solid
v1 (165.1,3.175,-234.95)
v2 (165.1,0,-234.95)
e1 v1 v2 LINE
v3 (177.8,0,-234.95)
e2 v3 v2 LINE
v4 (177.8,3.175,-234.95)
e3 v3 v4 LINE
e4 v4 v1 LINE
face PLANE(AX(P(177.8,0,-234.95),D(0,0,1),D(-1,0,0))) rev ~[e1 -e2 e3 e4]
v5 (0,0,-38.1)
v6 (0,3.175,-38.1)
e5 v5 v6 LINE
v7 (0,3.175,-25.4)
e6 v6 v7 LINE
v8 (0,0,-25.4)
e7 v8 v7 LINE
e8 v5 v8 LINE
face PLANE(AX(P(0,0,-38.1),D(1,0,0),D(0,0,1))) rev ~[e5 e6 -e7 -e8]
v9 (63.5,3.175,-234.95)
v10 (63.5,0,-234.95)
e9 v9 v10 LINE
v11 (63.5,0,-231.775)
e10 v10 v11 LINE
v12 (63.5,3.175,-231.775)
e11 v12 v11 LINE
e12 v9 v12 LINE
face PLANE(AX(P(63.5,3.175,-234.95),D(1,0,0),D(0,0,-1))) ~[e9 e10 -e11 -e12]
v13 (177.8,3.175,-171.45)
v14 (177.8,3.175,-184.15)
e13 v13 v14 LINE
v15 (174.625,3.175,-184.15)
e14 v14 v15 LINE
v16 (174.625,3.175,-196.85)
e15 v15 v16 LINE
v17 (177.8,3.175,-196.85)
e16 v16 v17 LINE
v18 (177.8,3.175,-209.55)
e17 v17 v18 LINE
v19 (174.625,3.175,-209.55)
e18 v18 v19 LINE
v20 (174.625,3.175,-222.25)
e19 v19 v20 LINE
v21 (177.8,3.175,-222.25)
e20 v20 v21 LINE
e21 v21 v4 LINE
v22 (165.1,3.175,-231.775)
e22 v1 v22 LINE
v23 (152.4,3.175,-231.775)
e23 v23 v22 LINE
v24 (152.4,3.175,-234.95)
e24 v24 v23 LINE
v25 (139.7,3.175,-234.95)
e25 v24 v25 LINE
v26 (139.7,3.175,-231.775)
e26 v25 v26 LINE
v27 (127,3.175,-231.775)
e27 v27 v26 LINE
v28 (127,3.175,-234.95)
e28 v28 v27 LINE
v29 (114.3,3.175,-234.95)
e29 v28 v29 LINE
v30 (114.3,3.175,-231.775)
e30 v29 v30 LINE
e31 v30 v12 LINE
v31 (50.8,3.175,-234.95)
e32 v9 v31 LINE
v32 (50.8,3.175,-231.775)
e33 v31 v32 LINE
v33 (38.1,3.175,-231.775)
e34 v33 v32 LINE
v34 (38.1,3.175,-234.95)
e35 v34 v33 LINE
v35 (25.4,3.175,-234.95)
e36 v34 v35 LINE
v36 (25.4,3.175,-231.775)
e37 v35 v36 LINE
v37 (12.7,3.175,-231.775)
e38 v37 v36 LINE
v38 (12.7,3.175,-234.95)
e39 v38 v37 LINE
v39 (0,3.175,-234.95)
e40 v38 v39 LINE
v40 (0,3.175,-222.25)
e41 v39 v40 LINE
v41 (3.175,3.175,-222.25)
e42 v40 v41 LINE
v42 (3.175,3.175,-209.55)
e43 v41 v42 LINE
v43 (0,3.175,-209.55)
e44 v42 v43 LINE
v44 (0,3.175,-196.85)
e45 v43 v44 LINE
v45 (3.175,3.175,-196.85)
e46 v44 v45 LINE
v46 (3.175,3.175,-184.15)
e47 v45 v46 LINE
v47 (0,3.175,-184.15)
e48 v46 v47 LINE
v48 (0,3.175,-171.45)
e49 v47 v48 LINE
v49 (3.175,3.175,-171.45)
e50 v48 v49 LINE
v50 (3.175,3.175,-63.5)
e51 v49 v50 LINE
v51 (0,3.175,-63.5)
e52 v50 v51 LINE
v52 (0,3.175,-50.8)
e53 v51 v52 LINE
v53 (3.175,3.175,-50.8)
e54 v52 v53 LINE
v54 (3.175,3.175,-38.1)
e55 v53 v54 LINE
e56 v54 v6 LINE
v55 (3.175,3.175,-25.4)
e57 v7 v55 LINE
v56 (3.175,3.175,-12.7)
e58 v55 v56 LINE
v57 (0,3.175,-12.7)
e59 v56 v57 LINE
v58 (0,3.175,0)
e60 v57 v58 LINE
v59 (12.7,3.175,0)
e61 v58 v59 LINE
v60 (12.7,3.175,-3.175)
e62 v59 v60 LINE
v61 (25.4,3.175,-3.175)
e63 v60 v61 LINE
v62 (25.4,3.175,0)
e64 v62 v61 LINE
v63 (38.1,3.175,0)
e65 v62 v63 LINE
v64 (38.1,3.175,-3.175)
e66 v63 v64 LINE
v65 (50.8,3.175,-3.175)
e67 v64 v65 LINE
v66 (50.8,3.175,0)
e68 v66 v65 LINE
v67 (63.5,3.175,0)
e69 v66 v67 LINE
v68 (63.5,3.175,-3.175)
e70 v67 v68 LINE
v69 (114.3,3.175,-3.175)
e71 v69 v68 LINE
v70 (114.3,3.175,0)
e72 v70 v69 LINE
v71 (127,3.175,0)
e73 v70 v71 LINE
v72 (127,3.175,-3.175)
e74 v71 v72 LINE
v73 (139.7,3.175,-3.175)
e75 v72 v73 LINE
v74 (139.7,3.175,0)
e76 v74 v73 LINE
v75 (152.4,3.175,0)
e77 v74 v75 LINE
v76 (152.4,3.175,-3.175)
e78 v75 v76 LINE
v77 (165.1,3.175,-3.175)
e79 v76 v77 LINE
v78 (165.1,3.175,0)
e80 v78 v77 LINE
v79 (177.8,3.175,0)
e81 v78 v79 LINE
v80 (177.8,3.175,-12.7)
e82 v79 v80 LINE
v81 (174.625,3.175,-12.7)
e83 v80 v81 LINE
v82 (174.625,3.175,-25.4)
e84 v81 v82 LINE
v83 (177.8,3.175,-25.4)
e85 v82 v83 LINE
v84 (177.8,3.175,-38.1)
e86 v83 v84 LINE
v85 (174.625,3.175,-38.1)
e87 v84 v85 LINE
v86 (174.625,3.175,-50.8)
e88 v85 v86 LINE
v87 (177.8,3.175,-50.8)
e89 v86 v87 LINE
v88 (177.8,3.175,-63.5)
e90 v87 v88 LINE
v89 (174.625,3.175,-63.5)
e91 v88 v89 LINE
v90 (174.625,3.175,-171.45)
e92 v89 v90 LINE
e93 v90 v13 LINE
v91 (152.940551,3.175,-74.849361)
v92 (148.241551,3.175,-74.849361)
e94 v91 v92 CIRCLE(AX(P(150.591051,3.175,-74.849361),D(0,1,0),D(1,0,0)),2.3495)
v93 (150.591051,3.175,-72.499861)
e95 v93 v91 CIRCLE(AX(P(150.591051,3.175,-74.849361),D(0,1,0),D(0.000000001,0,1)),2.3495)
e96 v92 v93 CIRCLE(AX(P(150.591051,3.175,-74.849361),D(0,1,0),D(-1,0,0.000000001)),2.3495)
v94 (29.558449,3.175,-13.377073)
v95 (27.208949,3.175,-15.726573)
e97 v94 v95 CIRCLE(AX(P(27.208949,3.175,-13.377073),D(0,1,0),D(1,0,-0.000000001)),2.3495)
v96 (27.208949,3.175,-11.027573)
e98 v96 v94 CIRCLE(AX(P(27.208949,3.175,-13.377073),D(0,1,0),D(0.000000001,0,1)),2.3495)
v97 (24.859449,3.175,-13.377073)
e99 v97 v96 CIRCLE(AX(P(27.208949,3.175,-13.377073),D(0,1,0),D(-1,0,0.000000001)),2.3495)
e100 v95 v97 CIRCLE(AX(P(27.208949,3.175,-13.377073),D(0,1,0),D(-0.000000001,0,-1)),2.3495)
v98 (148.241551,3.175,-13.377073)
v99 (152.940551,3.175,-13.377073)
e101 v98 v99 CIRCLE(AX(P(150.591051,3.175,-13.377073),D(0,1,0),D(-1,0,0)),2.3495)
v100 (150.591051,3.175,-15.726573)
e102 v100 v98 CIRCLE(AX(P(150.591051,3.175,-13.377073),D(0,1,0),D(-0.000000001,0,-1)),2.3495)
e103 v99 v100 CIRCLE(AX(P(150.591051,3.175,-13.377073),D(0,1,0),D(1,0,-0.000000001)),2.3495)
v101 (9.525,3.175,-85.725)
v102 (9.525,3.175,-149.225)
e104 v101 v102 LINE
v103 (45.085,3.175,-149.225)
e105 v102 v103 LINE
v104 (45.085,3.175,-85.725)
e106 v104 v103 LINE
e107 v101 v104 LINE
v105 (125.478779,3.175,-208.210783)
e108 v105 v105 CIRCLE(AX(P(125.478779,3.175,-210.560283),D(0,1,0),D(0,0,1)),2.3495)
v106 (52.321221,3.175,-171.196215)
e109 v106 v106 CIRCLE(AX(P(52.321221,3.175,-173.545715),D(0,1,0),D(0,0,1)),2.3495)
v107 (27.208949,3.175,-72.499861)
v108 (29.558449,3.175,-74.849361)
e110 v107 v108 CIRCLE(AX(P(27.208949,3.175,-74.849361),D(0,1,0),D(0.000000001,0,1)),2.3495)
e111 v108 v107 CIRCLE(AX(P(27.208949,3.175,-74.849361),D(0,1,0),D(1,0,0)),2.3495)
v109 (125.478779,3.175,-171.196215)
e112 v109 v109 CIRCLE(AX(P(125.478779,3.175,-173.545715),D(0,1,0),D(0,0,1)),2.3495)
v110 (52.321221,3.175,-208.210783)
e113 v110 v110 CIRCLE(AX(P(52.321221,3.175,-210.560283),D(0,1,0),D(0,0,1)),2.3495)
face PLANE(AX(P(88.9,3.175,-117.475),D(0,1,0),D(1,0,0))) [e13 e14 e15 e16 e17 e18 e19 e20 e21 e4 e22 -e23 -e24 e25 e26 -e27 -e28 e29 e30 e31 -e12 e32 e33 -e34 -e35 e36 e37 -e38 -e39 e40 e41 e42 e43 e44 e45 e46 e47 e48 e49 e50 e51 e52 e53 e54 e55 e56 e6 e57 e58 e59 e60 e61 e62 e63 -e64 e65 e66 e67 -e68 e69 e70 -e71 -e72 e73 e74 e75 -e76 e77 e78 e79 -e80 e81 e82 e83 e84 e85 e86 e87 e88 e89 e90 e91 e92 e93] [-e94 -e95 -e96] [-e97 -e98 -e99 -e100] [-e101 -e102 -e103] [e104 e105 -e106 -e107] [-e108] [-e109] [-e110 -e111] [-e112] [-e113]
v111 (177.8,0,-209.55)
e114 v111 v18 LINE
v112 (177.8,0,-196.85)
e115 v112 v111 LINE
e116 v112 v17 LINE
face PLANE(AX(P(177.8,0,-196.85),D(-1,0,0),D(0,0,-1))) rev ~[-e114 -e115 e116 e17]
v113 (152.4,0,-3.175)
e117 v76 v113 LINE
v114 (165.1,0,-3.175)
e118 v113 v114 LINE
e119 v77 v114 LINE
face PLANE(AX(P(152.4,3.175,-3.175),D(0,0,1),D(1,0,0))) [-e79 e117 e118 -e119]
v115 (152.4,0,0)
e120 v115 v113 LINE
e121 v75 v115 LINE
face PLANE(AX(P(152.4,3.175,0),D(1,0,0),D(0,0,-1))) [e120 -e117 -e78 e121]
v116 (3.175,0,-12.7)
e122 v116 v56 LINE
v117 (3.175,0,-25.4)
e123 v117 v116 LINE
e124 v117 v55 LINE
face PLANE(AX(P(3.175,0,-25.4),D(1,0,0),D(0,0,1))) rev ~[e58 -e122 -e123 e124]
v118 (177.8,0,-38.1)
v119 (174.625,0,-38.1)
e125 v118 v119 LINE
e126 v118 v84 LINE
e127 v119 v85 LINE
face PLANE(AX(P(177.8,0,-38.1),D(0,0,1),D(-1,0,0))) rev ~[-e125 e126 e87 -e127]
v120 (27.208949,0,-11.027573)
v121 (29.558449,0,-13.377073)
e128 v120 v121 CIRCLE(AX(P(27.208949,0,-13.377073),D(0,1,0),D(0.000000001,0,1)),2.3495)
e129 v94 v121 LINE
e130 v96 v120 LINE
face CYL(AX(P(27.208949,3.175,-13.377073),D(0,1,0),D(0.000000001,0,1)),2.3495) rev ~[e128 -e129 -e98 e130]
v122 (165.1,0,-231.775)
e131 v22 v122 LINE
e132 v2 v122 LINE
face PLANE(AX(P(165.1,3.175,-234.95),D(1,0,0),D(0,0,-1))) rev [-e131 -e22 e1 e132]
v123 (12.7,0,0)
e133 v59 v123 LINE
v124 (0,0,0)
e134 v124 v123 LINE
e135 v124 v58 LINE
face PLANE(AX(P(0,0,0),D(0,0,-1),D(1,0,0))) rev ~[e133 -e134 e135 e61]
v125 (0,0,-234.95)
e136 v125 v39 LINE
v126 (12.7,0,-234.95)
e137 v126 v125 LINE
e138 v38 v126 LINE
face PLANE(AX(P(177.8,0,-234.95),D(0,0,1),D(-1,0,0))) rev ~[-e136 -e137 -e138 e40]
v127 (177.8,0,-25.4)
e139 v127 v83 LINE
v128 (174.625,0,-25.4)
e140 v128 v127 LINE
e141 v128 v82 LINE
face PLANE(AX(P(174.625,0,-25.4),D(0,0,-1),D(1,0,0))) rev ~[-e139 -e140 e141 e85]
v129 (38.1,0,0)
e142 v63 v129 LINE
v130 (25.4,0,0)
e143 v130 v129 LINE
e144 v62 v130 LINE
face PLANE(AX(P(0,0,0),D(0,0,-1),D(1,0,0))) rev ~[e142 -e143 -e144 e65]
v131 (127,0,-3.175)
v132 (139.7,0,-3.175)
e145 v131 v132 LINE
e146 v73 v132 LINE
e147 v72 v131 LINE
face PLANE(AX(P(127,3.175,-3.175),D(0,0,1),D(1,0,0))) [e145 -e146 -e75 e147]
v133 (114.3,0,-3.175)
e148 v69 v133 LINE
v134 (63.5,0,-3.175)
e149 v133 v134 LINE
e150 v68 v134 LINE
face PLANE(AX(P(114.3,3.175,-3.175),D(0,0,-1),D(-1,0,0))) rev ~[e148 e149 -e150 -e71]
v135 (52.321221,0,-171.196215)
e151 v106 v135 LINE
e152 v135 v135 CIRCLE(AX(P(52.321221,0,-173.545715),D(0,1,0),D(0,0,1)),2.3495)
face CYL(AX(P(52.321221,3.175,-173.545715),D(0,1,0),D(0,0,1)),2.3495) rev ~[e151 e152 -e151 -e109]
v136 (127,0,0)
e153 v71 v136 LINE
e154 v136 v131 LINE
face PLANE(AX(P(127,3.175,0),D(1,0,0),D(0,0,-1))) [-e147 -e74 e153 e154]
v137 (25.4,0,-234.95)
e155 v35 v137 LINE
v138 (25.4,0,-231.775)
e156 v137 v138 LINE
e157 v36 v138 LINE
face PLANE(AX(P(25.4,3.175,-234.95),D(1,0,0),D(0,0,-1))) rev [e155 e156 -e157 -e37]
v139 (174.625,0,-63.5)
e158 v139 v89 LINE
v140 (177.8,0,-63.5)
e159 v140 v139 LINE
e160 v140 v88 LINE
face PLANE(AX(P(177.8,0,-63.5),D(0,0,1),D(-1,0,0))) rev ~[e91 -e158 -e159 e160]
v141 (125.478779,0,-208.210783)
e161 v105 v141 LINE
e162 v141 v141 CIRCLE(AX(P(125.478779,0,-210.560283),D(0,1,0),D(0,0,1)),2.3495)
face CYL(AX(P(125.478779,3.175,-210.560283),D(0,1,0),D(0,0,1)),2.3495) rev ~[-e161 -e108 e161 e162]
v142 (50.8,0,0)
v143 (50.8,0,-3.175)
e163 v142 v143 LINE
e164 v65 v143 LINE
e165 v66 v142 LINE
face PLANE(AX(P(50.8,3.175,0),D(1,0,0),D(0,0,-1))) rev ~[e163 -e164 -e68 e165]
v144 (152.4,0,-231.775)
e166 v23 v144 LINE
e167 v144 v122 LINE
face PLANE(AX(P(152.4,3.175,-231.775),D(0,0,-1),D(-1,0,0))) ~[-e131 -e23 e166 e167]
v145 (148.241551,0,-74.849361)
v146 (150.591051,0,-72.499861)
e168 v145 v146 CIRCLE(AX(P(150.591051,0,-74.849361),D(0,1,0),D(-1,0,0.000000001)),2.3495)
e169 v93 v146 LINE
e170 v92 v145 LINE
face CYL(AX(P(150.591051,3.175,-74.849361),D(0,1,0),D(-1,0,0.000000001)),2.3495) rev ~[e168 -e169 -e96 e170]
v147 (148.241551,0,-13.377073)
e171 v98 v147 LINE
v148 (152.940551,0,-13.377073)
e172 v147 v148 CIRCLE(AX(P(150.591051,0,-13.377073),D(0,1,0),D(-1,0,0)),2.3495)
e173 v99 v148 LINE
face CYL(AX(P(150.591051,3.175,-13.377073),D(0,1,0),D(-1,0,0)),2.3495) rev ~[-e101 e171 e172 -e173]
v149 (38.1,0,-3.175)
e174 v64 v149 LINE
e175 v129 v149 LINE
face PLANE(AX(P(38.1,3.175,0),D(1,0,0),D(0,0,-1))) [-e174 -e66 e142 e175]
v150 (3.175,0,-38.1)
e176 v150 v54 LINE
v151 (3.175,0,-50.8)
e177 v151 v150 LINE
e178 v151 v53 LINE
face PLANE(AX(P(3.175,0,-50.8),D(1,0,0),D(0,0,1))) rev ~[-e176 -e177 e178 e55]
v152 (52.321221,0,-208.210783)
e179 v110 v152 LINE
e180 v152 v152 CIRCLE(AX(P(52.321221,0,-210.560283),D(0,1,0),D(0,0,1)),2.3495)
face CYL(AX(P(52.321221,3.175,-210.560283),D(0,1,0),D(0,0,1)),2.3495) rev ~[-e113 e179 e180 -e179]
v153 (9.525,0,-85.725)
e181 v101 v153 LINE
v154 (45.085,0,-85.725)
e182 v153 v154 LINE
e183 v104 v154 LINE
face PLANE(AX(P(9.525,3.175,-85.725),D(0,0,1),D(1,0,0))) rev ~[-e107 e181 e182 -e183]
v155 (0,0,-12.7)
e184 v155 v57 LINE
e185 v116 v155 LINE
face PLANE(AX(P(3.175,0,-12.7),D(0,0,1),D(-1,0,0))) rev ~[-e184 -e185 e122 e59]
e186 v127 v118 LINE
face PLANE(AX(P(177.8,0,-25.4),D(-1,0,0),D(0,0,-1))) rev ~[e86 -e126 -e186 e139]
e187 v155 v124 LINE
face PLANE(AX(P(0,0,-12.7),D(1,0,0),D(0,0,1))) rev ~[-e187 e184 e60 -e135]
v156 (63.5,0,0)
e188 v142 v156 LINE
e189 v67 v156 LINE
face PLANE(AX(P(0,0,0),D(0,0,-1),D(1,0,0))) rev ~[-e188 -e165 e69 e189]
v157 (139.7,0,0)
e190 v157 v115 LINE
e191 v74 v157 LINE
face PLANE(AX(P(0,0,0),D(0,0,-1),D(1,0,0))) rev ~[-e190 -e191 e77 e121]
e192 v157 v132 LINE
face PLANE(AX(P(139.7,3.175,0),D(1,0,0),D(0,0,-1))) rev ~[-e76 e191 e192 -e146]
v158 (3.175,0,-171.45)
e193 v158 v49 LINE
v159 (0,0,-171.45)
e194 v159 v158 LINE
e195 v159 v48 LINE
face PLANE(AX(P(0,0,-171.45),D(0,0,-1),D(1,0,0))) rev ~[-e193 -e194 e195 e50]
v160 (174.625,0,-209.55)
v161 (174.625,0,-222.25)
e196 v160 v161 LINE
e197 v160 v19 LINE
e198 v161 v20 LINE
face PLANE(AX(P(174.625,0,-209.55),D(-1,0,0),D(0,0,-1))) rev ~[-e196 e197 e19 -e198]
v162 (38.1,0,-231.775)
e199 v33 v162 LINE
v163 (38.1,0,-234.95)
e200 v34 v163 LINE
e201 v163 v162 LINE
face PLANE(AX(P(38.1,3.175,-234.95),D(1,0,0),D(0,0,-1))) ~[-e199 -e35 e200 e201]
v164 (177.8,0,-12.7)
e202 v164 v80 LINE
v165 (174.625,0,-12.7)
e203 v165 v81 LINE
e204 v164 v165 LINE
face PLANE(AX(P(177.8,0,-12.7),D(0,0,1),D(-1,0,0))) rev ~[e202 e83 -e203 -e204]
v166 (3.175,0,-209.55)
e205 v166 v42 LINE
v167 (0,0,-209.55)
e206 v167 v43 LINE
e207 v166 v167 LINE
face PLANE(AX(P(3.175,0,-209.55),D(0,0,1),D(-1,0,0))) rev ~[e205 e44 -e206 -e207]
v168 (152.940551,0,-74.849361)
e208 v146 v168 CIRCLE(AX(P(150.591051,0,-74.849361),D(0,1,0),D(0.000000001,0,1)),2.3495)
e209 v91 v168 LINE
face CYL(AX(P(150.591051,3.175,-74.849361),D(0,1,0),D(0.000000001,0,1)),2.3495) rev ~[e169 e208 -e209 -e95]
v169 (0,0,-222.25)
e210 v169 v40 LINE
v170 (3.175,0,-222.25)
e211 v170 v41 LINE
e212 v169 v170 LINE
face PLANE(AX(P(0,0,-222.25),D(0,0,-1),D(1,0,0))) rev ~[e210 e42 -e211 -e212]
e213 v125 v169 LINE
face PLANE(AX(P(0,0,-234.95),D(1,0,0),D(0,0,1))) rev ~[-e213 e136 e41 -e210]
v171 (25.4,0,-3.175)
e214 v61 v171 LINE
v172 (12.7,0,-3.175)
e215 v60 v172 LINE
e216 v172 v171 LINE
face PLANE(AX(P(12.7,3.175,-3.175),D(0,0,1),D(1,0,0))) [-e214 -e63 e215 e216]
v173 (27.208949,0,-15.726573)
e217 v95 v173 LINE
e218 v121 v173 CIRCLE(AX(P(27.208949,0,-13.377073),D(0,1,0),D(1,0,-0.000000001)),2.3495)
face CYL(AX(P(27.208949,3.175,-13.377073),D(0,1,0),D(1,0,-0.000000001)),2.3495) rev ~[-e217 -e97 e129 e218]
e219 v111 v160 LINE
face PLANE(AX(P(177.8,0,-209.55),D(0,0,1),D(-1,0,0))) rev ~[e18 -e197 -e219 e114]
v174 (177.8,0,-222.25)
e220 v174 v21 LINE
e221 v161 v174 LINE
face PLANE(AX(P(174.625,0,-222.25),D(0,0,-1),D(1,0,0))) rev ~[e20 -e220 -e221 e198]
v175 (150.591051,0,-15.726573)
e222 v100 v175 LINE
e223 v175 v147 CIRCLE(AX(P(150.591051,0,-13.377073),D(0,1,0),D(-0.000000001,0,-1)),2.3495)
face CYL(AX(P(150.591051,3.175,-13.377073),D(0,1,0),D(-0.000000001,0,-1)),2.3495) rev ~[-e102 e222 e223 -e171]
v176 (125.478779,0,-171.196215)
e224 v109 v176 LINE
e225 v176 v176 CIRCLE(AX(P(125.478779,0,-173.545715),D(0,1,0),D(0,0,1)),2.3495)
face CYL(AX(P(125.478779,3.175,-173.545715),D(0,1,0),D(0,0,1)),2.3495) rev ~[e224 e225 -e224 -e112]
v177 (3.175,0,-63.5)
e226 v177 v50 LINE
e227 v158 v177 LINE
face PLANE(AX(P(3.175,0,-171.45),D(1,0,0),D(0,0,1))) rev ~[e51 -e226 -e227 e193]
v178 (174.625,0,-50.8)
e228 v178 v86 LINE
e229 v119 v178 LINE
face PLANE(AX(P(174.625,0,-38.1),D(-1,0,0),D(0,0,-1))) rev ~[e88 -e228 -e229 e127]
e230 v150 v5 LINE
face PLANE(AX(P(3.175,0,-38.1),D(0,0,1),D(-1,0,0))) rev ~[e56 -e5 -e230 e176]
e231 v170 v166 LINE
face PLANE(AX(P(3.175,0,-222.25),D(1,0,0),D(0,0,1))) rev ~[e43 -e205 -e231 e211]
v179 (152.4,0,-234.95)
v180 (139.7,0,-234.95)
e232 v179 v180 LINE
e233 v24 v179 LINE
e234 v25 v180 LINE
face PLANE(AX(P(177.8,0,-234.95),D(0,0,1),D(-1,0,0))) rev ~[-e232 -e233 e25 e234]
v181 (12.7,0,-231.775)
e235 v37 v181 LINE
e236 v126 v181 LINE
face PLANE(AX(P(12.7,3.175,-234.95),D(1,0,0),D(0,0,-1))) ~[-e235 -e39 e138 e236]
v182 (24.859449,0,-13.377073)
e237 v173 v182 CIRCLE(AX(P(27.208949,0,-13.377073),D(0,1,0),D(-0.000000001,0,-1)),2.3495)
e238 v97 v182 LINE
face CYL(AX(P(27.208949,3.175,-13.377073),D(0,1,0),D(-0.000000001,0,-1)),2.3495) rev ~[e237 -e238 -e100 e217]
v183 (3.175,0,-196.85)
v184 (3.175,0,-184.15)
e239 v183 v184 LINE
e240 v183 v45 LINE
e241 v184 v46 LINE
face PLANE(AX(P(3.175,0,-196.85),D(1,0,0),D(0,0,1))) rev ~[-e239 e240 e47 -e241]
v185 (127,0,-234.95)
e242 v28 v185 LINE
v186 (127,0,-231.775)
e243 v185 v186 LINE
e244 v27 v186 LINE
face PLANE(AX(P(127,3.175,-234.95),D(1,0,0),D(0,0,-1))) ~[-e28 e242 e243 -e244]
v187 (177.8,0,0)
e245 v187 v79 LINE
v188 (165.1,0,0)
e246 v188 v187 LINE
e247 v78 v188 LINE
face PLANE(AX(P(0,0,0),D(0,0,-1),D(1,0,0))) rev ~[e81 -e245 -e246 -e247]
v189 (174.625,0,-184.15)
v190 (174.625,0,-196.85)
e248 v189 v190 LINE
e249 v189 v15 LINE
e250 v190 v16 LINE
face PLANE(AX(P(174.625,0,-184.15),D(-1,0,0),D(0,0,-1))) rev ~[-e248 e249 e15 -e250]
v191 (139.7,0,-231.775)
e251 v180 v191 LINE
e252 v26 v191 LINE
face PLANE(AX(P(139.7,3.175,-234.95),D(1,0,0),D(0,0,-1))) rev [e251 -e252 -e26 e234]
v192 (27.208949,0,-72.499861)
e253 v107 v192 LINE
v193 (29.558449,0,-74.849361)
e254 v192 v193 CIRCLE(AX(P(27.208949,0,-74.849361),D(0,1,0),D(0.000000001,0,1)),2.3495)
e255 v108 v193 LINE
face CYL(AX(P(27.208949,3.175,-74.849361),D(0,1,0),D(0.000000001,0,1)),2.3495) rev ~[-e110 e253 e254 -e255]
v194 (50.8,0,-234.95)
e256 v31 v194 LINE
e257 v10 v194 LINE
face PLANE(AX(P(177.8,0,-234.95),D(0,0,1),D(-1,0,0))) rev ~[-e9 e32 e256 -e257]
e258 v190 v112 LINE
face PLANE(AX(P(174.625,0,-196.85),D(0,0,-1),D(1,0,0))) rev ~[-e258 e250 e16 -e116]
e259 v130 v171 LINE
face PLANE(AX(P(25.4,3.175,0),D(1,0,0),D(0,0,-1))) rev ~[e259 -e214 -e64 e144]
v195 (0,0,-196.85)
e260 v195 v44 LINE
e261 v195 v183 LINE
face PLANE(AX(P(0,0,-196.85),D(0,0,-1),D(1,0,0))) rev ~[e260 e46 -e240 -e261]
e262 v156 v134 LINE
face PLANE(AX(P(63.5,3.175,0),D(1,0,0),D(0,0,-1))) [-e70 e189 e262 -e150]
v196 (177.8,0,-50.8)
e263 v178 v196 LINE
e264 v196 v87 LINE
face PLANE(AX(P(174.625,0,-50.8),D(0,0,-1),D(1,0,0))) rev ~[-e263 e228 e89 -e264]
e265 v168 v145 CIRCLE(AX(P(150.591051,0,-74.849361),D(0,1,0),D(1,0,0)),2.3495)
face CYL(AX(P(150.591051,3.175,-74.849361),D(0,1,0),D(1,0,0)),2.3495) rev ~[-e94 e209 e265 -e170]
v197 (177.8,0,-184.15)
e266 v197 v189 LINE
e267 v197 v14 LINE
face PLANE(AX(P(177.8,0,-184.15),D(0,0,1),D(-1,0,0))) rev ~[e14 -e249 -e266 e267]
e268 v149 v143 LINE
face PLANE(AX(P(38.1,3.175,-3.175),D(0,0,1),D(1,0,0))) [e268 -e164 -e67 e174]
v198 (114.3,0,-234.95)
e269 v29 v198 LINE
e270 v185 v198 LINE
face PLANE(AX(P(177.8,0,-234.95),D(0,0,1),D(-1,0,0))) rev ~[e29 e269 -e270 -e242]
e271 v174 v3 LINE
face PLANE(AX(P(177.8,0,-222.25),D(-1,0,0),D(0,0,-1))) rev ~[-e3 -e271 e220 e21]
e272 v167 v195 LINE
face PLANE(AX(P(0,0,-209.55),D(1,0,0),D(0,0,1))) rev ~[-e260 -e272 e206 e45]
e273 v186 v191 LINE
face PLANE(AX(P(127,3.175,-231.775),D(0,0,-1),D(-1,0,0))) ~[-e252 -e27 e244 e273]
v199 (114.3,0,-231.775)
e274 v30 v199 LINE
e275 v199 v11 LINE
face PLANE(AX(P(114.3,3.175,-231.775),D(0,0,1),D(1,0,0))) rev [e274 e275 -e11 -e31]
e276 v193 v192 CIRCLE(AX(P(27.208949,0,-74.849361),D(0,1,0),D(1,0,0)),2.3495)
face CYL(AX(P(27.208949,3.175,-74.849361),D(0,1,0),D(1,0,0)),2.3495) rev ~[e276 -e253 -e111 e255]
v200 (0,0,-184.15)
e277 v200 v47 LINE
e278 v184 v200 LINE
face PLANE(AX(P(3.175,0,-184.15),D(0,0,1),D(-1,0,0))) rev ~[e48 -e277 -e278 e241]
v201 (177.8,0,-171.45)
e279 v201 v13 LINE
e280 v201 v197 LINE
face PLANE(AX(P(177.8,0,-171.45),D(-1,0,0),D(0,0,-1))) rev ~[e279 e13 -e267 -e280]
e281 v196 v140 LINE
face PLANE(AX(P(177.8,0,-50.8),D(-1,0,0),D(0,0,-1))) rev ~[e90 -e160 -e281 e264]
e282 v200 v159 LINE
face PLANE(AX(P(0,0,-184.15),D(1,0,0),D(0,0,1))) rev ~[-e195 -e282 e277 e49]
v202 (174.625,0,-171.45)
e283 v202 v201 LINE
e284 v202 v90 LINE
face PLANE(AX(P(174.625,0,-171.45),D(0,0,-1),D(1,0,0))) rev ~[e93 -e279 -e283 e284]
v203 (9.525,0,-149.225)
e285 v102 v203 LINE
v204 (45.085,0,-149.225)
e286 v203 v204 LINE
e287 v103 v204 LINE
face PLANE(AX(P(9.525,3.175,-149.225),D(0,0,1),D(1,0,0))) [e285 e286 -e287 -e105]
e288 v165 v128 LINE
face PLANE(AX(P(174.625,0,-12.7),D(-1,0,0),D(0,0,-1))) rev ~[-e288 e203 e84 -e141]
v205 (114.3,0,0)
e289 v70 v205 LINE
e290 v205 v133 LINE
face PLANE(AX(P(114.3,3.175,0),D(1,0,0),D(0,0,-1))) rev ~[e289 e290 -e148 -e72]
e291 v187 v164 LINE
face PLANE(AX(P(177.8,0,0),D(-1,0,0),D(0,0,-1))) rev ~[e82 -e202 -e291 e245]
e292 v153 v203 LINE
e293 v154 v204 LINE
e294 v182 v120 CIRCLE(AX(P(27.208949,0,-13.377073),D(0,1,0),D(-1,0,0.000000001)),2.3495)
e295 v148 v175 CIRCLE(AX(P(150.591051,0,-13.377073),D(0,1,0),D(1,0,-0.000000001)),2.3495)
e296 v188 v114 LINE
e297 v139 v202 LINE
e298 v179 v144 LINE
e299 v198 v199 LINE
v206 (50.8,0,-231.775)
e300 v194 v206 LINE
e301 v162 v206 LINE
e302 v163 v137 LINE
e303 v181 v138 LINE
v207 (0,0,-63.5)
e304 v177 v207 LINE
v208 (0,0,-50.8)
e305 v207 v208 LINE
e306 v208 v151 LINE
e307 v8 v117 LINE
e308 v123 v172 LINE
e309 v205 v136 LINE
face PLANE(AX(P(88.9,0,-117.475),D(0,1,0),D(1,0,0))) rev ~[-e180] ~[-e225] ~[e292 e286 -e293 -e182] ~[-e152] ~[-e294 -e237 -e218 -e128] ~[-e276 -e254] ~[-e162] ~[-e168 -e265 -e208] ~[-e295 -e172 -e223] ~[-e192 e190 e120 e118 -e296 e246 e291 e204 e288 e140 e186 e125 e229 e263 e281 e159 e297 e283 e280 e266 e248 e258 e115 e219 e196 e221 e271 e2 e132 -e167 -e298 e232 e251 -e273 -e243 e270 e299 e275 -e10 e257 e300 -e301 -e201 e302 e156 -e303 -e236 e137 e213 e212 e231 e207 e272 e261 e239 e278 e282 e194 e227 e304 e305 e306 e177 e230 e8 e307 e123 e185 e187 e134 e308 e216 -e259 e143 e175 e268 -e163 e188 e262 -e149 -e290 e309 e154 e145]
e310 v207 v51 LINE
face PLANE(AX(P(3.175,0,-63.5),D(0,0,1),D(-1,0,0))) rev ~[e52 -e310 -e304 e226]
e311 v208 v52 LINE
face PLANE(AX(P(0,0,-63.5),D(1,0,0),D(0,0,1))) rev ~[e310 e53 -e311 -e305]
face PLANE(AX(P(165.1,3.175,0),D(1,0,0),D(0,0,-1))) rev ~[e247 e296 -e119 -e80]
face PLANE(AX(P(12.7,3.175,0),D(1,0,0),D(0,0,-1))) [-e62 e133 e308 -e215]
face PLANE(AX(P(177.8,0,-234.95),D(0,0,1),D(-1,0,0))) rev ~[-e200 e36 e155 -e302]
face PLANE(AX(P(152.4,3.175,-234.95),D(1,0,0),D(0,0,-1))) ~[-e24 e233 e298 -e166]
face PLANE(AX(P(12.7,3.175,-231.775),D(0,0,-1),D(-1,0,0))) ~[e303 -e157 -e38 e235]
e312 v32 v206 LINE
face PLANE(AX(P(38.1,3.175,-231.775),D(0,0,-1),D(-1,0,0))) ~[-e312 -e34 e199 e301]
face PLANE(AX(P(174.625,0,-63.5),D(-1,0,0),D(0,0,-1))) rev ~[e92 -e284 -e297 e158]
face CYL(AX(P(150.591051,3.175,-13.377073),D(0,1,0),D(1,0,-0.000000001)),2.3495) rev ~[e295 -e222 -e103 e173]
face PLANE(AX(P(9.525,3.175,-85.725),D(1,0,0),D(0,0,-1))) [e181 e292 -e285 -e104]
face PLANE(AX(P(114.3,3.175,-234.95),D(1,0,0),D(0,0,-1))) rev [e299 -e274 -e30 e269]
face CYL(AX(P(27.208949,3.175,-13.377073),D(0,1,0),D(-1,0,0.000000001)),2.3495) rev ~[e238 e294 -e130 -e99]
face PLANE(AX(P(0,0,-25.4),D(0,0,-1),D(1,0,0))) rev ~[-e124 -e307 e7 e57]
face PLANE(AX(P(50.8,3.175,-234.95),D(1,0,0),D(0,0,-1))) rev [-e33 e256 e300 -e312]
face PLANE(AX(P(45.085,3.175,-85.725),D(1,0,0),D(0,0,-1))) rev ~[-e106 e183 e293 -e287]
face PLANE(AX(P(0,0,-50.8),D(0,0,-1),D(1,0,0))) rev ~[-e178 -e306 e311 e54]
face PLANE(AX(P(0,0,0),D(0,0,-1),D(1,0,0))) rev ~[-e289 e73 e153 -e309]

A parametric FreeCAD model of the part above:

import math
import FreeCAD as App
import Part
import Sketcher

V = App.Vector
Q = App.Units.Quantity

doc = App.newDocument("Part")
body = doc.addObject("PartDesign::Body", "Body")

# Sketch on XZ plane
sketch1 = body.newObject("Sketcher::SketchObject", "Sketch")
sketch1.AttachmentSupport = (doc.getObject("XZ_Plane"), [""])
sketch1.MapMode = "FlatFace"
sketch1.addGeometry([
    Part.LineSegment(V(3.2, -209.6, 0), V(0, -209.6, 0)),  # 0
    Part.LineSegment(V(0, -209.6, 0), V(0, -196.8, 0)),  # 1
    Part.LineSegment(V(0, -196.8, 0), V(3.2, -196.8, 0)),  # 2
    Part.LineSegment(V(3.2, -196.8, 0), V(3.2, -184.2, 0)),  # 3
    Part.LineSegment(V(3.2, -184.2, 0), V(0, -184.2, 0)),  # 4
    Part.LineSegment(V(0, -184.2, 0), V(0, -171.4, 0)),  # 5
    Part.LineSegment(V(0, -171.4, 0), V(3.2, -171.4, 0)),  # 6
    Part.LineSegment(V(3.2, -171.4, 0), V(3.2, -63.5, 0)),  # 7
    Part.LineSegment(V(3.2, -63.5, 0), V(0, -63.5, 0)),  # 8
    Part.LineSegment(V(0, -63.5, 0), V(0, -50.8, 0)),  # 9
    Part.LineSegment(V(0, -50.8, 0), V(3.2, -50.8, 0)),  # 10
    Part.LineSegment(V(3.2, -50.8, 0), V(3.2, -38.1, 0)),  # 11
    Part.LineSegment(V(3.2, -38.1, 0), V(0, -38.1, 0)),  # 12
    Part.LineSegment(V(0, -38.1, 0), V(0, -25.4, 0)),  # 13
    Part.LineSegment(V(0, -25.4, 0), V(3.2, -25.4, 0)),  # 14
    Part.LineSegment(V(3.2, -25.4, 0), V(3.2, -12.7, 0)),  # 15
    Part.LineSegment(V(3.2, -12.7, 0), V(0, -12.7, 0)),  # 16
    Part.LineSegment(V(0, -12.7, 0), V(0, 0, 0)),  # 17
    Part.LineSegment(V(0, 0, 0), V(177.8, 0, 0)),  # 18
    Part.LineSegment(V(177.8, 0, 0), V(177.8, -12.7, 0)),  # 19
    Part.LineSegment(V(177.8, -12.7, 0), V(174.6, -12.7, 0)),  # 20
    Part.LineSegment(V(174.6, -12.7, 0), V(174.6, -25.4, 0)),  # 21
    Part.LineSegment(V(174.6, -25.4, 0), V(177.8, -25.4, 0)),  # 22
    Part.LineSegment(V(177.8, -25.4, 0), V(177.8, -38.1, 0)),  # 23
    Part.LineSegment(V(177.8, -38.1, 0), V(174.6, -38.1, 0)),  # 24
    Part.LineSegment(V(174.6, -38.1, 0), V(174.6, -50.8, 0)),  # 25
    Part.LineSegment(V(174.6, -50.8, 0), V(177.8, -50.8, 0)),  # 26
    Part.LineSegment(V(177.8, -50.8, 0), V(177.8, -63.5, 0)),  # 27
    Part.LineSegment(V(177.8, -63.5, 0), V(174.6, -63.5, 0)),  # 28
    Part.LineSegment(V(174.6, -63.5, 0), V(174.6, -171.4, 0)),  # 29
    Part.LineSegment(V(174.6, -171.4, 0), V(177.8, -171.4, 0)),  # 30
    Part.LineSegment(V(177.8, -171.4, 0), V(177.8, -184.2, 0)),  # 31
    Part.LineSegment(V(177.8, -184.2, 0), V(174.6, -184.2, 0)),  # 32
    Part.LineSegment(V(174.6, -184.2, 0), V(174.6, -196.8, 0)),  # 33
    Part.LineSegment(V(174.6, -196.8, 0), V(177.8, -196.8, 0)),  # 34
    Part.LineSegment(V(177.8, -196.8, 0), V(177.8, -209.6, 0)),  # 35
    Part.LineSegment(V(177.8, -209.6, 0), V(174.6, -209.6, 0)),  # 36
    Part.LineSegment(V(174.6, -209.6, 0), V(174.6, -222.2, 0)),  # 37
    Part.LineSegment(V(174.6, -222.2, 0), V(177.8, -222.2, 0)),  # 38
    Part.LineSegment(V(177.8, -222.2, 0), V(177.8, -234.9, 0)),  # 39
    Part.LineSegment(V(177.8, -234.9, 0), V(0, -234.9, 0)),  # 40
    Part.LineSegment(V(0, -234.9, 0), V(0, -222.2, 0)),  # 41
    Part.LineSegment(V(0, -222.2, 0), V(3.2, -222.2, 0)),  # 42
    Part.LineSegment(V(3.2, -222.2, 0), V(3.2, -209.6, 0)),  # 43
], False)
sketch1.addConstraint([
    Sketcher.Constraint("Coincident", 0, 2, 1, 1),
    Sketcher.Constraint("Coincident", 1, 2, 2, 1),
    Sketcher.Constraint("Coincident", 2, 2, 3, 1),
    Sketcher.Constraint("Coincident", 3, 2, 4, 1),
    Sketcher.Constraint("Coincident", 4, 2, 5, 1),
    Sketcher.Constraint("Coincident", 5, 2, 6, 1),
    Sketcher.Constraint("Coincident", 6, 2, 7, 1),
    Sketcher.Constraint("Coincident", 7, 2, 8, 1),
    Sketcher.Constraint("Coincident", 8, 2, 9, 1),
    Sketcher.Constraint("Coincident", 9, 2, 10, 1),
    Sketcher.Constraint("Coincident", 10, 2, 11, 1),
    Sketcher.Constraint("Coincident", 11, 2, 12, 1),
    Sketcher.Constraint("Coincident", 12, 2, 13, 1),
    Sketcher.Constraint("Coincident", 13, 2, 14, 1),
    Sketcher.Constraint("Coincident", 14, 2, 15, 1),
    Sketcher.Constraint("Coincident", 15, 2, 16, 1),
    Sketcher.Constraint("Coincident", 16, 2, 17, 1),
    Sketcher.Constraint("Coincident", 17, 2, 18, 1),
    Sketcher.Constraint("Coincident", 18, 2, 19, 1),
    Sketcher.Constraint("Coincident", 19, 2, 20, 1),
    Sketcher.Constraint("Coincident", 20, 2, 21, 1),
    Sketcher.Constraint("Coincident", 21, 2, 22, 1),
    Sketcher.Constraint("Coincident", 22, 2, 23, 1),
    Sketcher.Constraint("Coincident", 23, 2, 24, 1),
    Sketcher.Constraint("Coincident", 24, 2, 25, 1),
    Sketcher.Constraint("Coincident", 25, 2, 26, 1),
    Sketcher.Constraint("Coincident", 26, 2, 27, 1),
    Sketcher.Constraint("Coincident", 27, 2, 28, 1),
    Sketcher.Constraint("Coincident", 28, 2, 29, 1),
    Sketcher.Constraint("Coincident", 29, 2, 30, 1),
    Sketcher.Constraint("Coincident", 30, 2, 31, 1),
    Sketcher.Constraint("Coincident", 31, 2, 32, 1),
    Sketcher.Constraint("Coincident", 32, 2, 33, 1),
    Sketcher.Constraint("Coincident", 33, 2, 34, 1),
    Sketcher.Constraint("Coincident", 34, 2, 35, 1),
    Sketcher.Constraint("Coincident", 35, 2, 36, 1),
    Sketcher.Constraint("Coincident", 36, 2, 37, 1),
    Sketcher.Constraint("Coincident", 37, 2, 38, 1),
    Sketcher.Constraint("Coincident", 38, 2, 39, 1),
    Sketcher.Constraint("Coincident", 39, 2, 40, 1),
    Sketcher.Constraint("Coincident", 40, 2, 41, 1),
    Sketcher.Constraint("Coincident", 41, 2, 42, 1),
    Sketcher.Constraint("Coincident", 42, 2, 43, 1),
    Sketcher.Constraint("Coincident", 43, 2, 0, 1),
    Sketcher.Constraint("Horizontal", 0),
    Sketcher.Constraint("Vertical", 1),
    Sketcher.Constraint("Horizontal", 2),
    Sketcher.Constraint("Vertical", 3),
    Sketcher.Constraint("Horizontal", 4),
    Sketcher.Constraint("Vertical", 5),
    Sketcher.Constraint("Horizontal", 6),
    Sketcher.Constraint("Vertical", 7),
    Sketcher.Constraint("Horizontal", 8),
    Sketcher.Constraint("Vertical", 9),
    Sketcher.Constraint("Horizontal", 10),
    Sketcher.Constraint("Vertical", 11),
    Sketcher.Constraint("Horizontal", 12),
    Sketcher.Constraint("Vertical", 13),
    Sketcher.Constraint("Horizontal", 14),
    Sketcher.Constraint("Vertical", 15),
    Sketcher.Constraint("Horizontal", 16),
    Sketcher.Constraint("Vertical", 17),
    Sketcher.Constraint("Horizontal", 18),
    Sketcher.Constraint("Vertical", 19),
    Sketcher.Constraint("Horizontal", 20),
    Sketcher.Constraint("Vertical", 21),
    Sketcher.Constraint("Horizontal", 22),
    Sketcher.Constraint("Vertical", 23),
    Sketcher.Constraint("Horizontal", 24),
    Sketcher.Constraint("Vertical", 25),
    Sketcher.Constraint("Horizontal", 26),
    Sketcher.Constraint("Vertical", 27),
    Sketcher.Constraint("Horizontal", 28),
    Sketcher.Constraint("Vertical", 29),
    Sketcher.Constraint("Horizontal", 30),
    Sketcher.Constraint("Vertical", 31),
    Sketcher.Constraint("Horizontal", 32),
    Sketcher.Constraint("Vertical", 33),
    Sketcher.Constraint("Horizontal", 34),
    Sketcher.Constraint("Vertical", 35),
    Sketcher.Constraint("Horizontal", 36),
    Sketcher.Constraint("Vertical", 37),
    Sketcher.Constraint("Horizontal", 38),
    Sketcher.Constraint("Vertical", 39),
    Sketcher.Constraint("Horizontal", 40),
    Sketcher.Constraint("Vertical", 41),
    Sketcher.Constraint("Horizontal", 42),
    Sketcher.Constraint("Vertical", 43),
    Sketcher.Constraint("Coincident", 17, 2, -1, 1),
    Sketcher.Constraint("PointOnObject", 0, 2, -2),
    Sketcher.Constraint("PointOnObject", 4, 2, -2),
    Sketcher.Constraint("PointOnObject", 8, 2, -2),
    Sketcher.Constraint("PointOnObject", 12, 2, -2),
    Sketcher.Constraint("PointOnObject", 40, 2, -2),
    Sketcher.Constraint("Horizontal", 16, 2, 19, 2),
    Sketcher.Constraint("Horizontal", 14, 2, 21, 2),
    Sketcher.Constraint("Horizontal", 12, 2, 23, 2),
    Sketcher.Constraint("Horizontal", 10, 2, 25, 2),
    Sketcher.Constraint("Horizontal", 8, 2, 27, 2),
    Sketcher.Constraint("Horizontal", 6, 2, 29, 2),
    Sketcher.Constraint("Horizontal", 4, 2, 31, 2),
    Sketcher.Constraint("Horizontal", 2, 2, 33, 2),
    Sketcher.Constraint("Horizontal", 0, 2, 35, 2),
    Sketcher.Constraint("Horizontal", 38, 2, 41, 2),
    Sketcher.Constraint("Vertical", 3, 2, 6, 2),
    Sketcher.Constraint("Vertical", 7, 2, 10, 2),
    Sketcher.Constraint("Vertical", 11, 2, 14, 2),
    Sketcher.Constraint("Vertical", 19, 2, 22, 2),
    Sketcher.Constraint("Vertical", 21, 2, 24, 2),
    Sketcher.Constraint("Vertical", 23, 2, 26, 2),
    Sketcher.Constraint("Vertical", 25, 2, 28, 2),
    Sketcher.Constraint("Vertical", 27, 2, 30, 2),
    Sketcher.Constraint("Vertical", 29, 2, 32, 2),
    Sketcher.Constraint("Vertical", 31, 2, 34, 2),
    Sketcher.Constraint("Vertical", 33, 2, 36, 2),
    Sketcher.Constraint("Vertical", 35, 2, 38, 2),
    Sketcher.Constraint("Vertical", 15, 2, 42, 2),
    Sketcher.Constraint("Equal", 16, 20),
    Sketcher.Constraint("Equal", 1, 3),
    Sketcher.Constraint("Equal", 3, 5),
    Sketcher.Constraint("Equal", 5, 9),
    Sketcher.Constraint("Equal", 9, 11),
    Sketcher.Constraint("Equal", 11, 13),
    Sketcher.Constraint("Equal", 13, 15),
    Sketcher.Constraint("Equal", 15, 17),
    Sketcher.Constraint("Equal", 35, 37),
    Sketcher.Constraint("Equal", 37, 39),
    Sketcher.Constraint("DistanceX", 18, 1, 18, 2, Q("7 in")),
    Sketcher.Constraint("DistanceY", 1, 1, 1, 2, Q("0.5 in")),
    Sketcher.Constraint("DistanceY", 7, 1, 7, 2, Q("4.25 in")),
    Sketcher.Constraint("DistanceX", 0, 2, 0, 1, Q("0.125 in")),
])
pad1 = body.newObject("PartDesign::Pad", "Pad")
pad1.Profile = sketch1
pad1.Length = Q("0.125 in")
pad1.Reversed = True

# Sketch on XZ plane
sketch2 = body.newObject("Sketcher::SketchObject", "Sketch001")
sketch2.AttachmentSupport = (doc.getObject("XZ_Plane"), [""])
sketch2.MapMode = "FlatFace"
sketch2.AttachmentOffset = App.Placement(V(0, 0, -0.125 * 25.4), App.Rotation())
sketch2.addGeometry([
    Part.LineSegment(V(12.7, -3.2, 0), V(12.7, 0, 0)),  # 0
    Part.LineSegment(V(12.7, 0, 0), V(25.4, 0, 0)),  # 1
    Part.LineSegment(V(25.4, 0, 0), V(25.4, -3.2, 0)),  # 2
    Part.LineSegment(V(25.4, -3.2, 0), V(12.7, -3.2, 0)),  # 3
    Part.LineSegment(V(38.1, -3.2, 0), V(38.1, 0, 0)),  # 4
    Part.LineSegment(V(38.1, 0, 0), V(50.8, 0, 0)),  # 5
    Part.LineSegment(V(50.8, 0, 0), V(50.8, -3.2, 0)),  # 6
    Part.LineSegment(V(50.8, -3.2, 0), V(38.1, -3.2, 0)),  # 7
    Part.LineSegment(V(63.5, -3.2, 0), V(63.5, 0, 0)),  # 8
    Part.LineSegment(V(63.5, 0, 0), V(114.3, 0, 0)),  # 9
    Part.LineSegment(V(114.3, 0, 0), V(114.3, -3.2, 0)),  # 10
    Part.LineSegment(V(114.3, -3.2, 0), V(63.5, -3.2, 0)),  # 11
    Part.LineSegment(V(127, -3.2, 0), V(127, 0, 0)),  # 12
    Part.LineSegment(V(127, 0, 0), V(139.7, 0, 0)),  # 13
    Part.LineSegment(V(139.7, 0, 0), V(139.7, -3.2, 0)),  # 14
    Part.LineSegment(V(139.7, -3.2, 0), V(127, -3.2, 0)),  # 15
    Part.LineSegment(V(152.4, -3.2, 0), V(152.4, 0, 0)),  # 16
    Part.LineSegment(V(152.4, 0, 0), V(165.1, 0, 0)),  # 17
    Part.LineSegment(V(165.1, 0, 0), V(165.1, -3.2, 0)),  # 18
    Part.LineSegment(V(165.1, -3.2, 0), V(152.4, -3.2, 0)),  # 19
], False)
sketch2.addConstraint([
    Sketcher.Constraint("Coincident", 0, 2, 1, 1),
    Sketcher.Constraint("Coincident", 1, 2, 2, 1),
    Sketcher.Constraint("Coincident", 2, 2, 3, 1),
    Sketcher.Constraint("Coincident", 3, 2, 0, 1),
    Sketcher.Constraint("Coincident", 4, 2, 5, 1),
    Sketcher.Constraint("Coincident", 5, 2, 6, 1),
    Sketcher.Constraint("Coincident", 6, 2, 7, 1),
    Sketcher.Constraint("Coincident", 7, 2, 4, 1),
    Sketcher.Constraint("Coincident", 8, 2, 9, 1),
    Sketcher.Constraint("Coincident", 9, 2, 10, 1),
    Sketcher.Constraint("Coincident", 10, 2, 11, 1),
    Sketcher.Constraint("Coincident", 11, 2, 8, 1),
    Sketcher.Constraint("Coincident", 12, 2, 13, 1),
    Sketcher.Constraint("Coincident", 13, 2, 14, 1),
    Sketcher.Constraint("Coincident", 14, 2, 15, 1),
    Sketcher.Constraint("Coincident", 15, 2, 12, 1),
    Sketcher.Constraint("Coincident", 16, 2, 17, 1),
    Sketcher.Constraint("Coincident", 17, 2, 18, 1),
    Sketcher.Constraint("Coincident", 18, 2, 19, 1),
    Sketcher.Constraint("Coincident", 19, 2, 16, 1),
    Sketcher.Constraint("Vertical", 0),
    Sketcher.Constraint("Horizontal", 1),
    Sketcher.Constraint("Vertical", 2),
    Sketcher.Constraint("Horizontal", 3),
    Sketcher.Constraint("Vertical", 4),
    Sketcher.Constraint("Horizontal", 5),
    Sketcher.Constraint("Vertical", 6),
    Sketcher.Constraint("Horizontal", 7),
    Sketcher.Constraint("Vertical", 8),
    Sketcher.Constraint("Horizontal", 9),
    Sketcher.Constraint("Vertical", 10),
    Sketcher.Constraint("Horizontal", 11),
    Sketcher.Constraint("Vertical", 12),
    Sketcher.Constraint("Horizontal", 13),
    Sketcher.Constraint("Vertical", 14),
    Sketcher.Constraint("Horizontal", 15),
    Sketcher.Constraint("Vertical", 16),
    Sketcher.Constraint("Horizontal", 17),
    Sketcher.Constraint("Vertical", 18),
    Sketcher.Constraint("Horizontal", 19),
    Sketcher.Constraint("PointOnObject", 0, 2, -1),
    Sketcher.Constraint("PointOnObject", 4, 2, -1),
    Sketcher.Constraint("PointOnObject", 8, 2, -1),
    Sketcher.Constraint("PointOnObject", 12, 2, -1),
    Sketcher.Constraint("PointOnObject", 16, 2, -1),
    Sketcher.Constraint("Horizontal", 3, 2, 6, 2),
    Sketcher.Constraint("Horizontal", 7, 2, 10, 2),
    Sketcher.Constraint("Horizontal", 11, 2, 14, 2),
    Sketcher.Constraint("Horizontal", 15, 2, 18, 2),
    Sketcher.Constraint("Equal", 3, 5),
    Sketcher.Constraint("Equal", 7, 13),
    Sketcher.Constraint("Equal", 15, 17),
    Sketcher.Constraint("DistanceX", 9, 1, 9, 2, Q("2 in")),
    Sketcher.Constraint("DistanceX", 1, 1, 1, 2, Q("0.5 in")),
    Sketcher.Constraint("DistanceX", -1, 1, 1, 2, Q("1 in")),
    Sketcher.Constraint("DistanceX", -1, 1, 5, 2, Q("2 in")),
    Sketcher.Constraint("DistanceX", -1, 1, 12, 2, Q("5 in")),
    Sketcher.Constraint("DistanceX", -1, 1, 16, 2, Q("6 in")),
    Sketcher.Constraint("DistanceX", 4, 2, 8, 2, Q("1 in")),
    Sketcher.Constraint("DistanceY", 0, 1, 0, 2, Q("0.125 in")),
])
pocket1 = body.newObject("PartDesign::Pocket", "Pocket")
pocket1.Profile = sketch2
pocket1.Length = Q("0.3 in")
pocket1.Reversed = True
doc.recompute()

datumplane = body.newObject("PartDesign::Plane", "DatumPlane")
datumplane.AttachmentSupport = (doc.getObject("XY_Plane"), [""])
datumplane.MapMode = "FlatFace"
datumplane.AttachmentOffset = App.Placement(V(0, 0, -4.625 * 25.4), App.Rotation())
mirrored = body.newObject("PartDesign::Mirrored", "Mirrored")
mirrored.Originals = [pocket1]
mirrored.MirrorPlane = (datumplane, [""])
body.Tip = mirrored

# Sketch on XZ plane
sketch3 = body.newObject("Sketcher::SketchObject", "Sketch002")
sketch3.AttachmentSupport = (doc.getObject("XZ_Plane"), [""])
sketch3.MapMode = "FlatFace"
sketch3.AttachmentOffset = App.Placement(V(0, 0, -0.125 * 25.4), App.Rotation())
sketch3.addGeometry([
    Part.LineSegment(V(10, -149, 0), V(10, -86, 0)),
    Part.LineSegment(V(10, -86, 0), V(45, -86, 0)),
    Part.LineSegment(V(45, -86, 0), V(45, -149, 0)),
    Part.LineSegment(V(45, -149, 0), V(10, -149, 0)),
], False)
sketch3.addConstraint([
    Sketcher.Constraint("Coincident", 0, 2, 1, 1),
    Sketcher.Constraint("Coincident", 1, 2, 2, 1),
    Sketcher.Constraint("Coincident", 2, 2, 3, 1),
    Sketcher.Constraint("Coincident", 3, 2, 0, 1),
    Sketcher.Constraint("Vertical", 0),
    Sketcher.Constraint("Horizontal", 1),
    Sketcher.Constraint("Vertical", 2),
    Sketcher.Constraint("Horizontal", 3),
    Sketcher.Constraint("DistanceX", 1, 1, 1, 2, Q("1.4 in")),
    Sketcher.Constraint("DistanceY", 0, 1, 0, 2, Q("2.5 in")),
    Sketcher.Constraint("DistanceX", -1, 1, 0, 2, Q("0.375 in")),
    Sketcher.Constraint("DistanceY", 0, 2, -1, 1, Q("3.375 in")),
])
pocket2 = body.newObject("PartDesign::Pocket", "Pocket001")
pocket2.Profile = sketch3
pocket2.Length = Q("0.3 in")
pocket2.Reversed = True

# Sketch on XZ plane
sketch4 = body.newObject("Sketcher::SketchObject", "Sketch003")
sketch4.AttachmentSupport = (doc.getObject("XZ_Plane"), [""])
sketch4.MapMode = "FlatFace"
sketch4.AttachmentOffset = App.Placement(V(0, 0, -0.125 * 25.4), App.Rotation())
sketch4.addGeometry([
    Part.ArcOfCircle(Part.Circle(V(27.2, -13.4, 0), V(0, 0, 1), 2.3), math.radians(90), math.radians(180)),  # 0
    Part.ArcOfCircle(Part.Circle(V(27.2, -13.4, 0), V(0, 0, 1), 2.3), math.radians(0), math.radians(90)),  # 1
    Part.ArcOfCircle(Part.Circle(V(27.2, -13.4, 0), V(0, 0, 1), 2.3), math.radians(-90), math.radians(0)),  # 2
    Part.ArcOfCircle(Part.Circle(V(27.2, -13.4, 0), V(0, 0, 1), 2.3), math.radians(-180), math.radians(-90)),  # 3
    Part.ArcOfCircle(Part.Circle(V(27.2, -74.8, 0), V(0, 0, 1), 2.3), math.radians(90), math.radians(360)),  # 4
    Part.ArcOfCircle(Part.Circle(V(27.2, -74.8, 0), V(0, 0, 1), 2.3), math.radians(0), math.radians(90)),  # 5
    Part.ArcOfCircle(Part.Circle(V(150.6, -74.8, 0), V(0, 0, 1), 2.3), math.radians(90), math.radians(180)),  # 6
    Part.ArcOfCircle(Part.Circle(V(150.6, -74.8, 0), V(0, 0, 1), 2.3), math.radians(0), math.radians(90)),  # 7
    Part.ArcOfCircle(Part.Circle(V(150.6, -74.8, 0), V(0, 0, 1), 2.3), math.radians(180), math.radians(360)),  # 8
    Part.ArcOfCircle(Part.Circle(V(150.6, -13.4, 0), V(0, 0, 1), 2.3), math.radians(-180), math.radians(-90)),  # 9
    Part.ArcOfCircle(Part.Circle(V(150.6, -13.4, 0), V(0, 0, 1), 2.3), math.radians(0), math.radians(180)),  # 10
    Part.ArcOfCircle(Part.Circle(V(150.6, -13.4, 0), V(0, 0, 1), 2.3), math.radians(-90), math.radians(0)),  # 11
], False)
sketch4.addConstraint([
    Sketcher.Constraint("Tangent", 0, 1, 1, 2),
    Sketcher.Constraint("Tangent", 1, 1, 2, 2),
    Sketcher.Constraint("Tangent", 2, 1, 3, 2),
    Sketcher.Constraint("Tangent", 3, 1, 0, 2),
    Sketcher.Constraint("Tangent", 4, 1, 5, 2),
    Sketcher.Constraint("Coincident", 5, 1, 4, 2),
    Sketcher.Constraint("Tangent", 6, 1, 7, 2),
    Sketcher.Constraint("Tangent", 7, 1, 8, 2),
    Sketcher.Constraint("Tangent", 8, 1, 6, 2),
    Sketcher.Constraint("Tangent", 9, 1, 10, 2),
    Sketcher.Constraint("Tangent", 10, 1, 11, 2),
    Sketcher.Constraint("Tangent", 11, 1, 9, 2),
    Sketcher.Constraint("Equal", 0, 1),
    Sketcher.Constraint("Equal", 3, 4),
    Sketcher.Constraint("Equal", 5, 6),
    Sketcher.Constraint("Equal", 8, 9),
    Sketcher.Constraint("Horizontal", 5, 3, 6, 3),
    Sketcher.Constraint("Horizontal", 3, 3, 9, 3),
    Sketcher.Constraint("Horizontal", 11, 3, 1, 1),
    Sketcher.Constraint("Horizontal", 1, 1, 3, 1),
    Sketcher.Constraint("Horizontal", 8, 3, 5, 1),
    Sketcher.Constraint("Horizontal", 5, 1, 7, 1),
    Sketcher.Constraint("Horizontal", 7, 1, 8, 1),
    Sketcher.Constraint("Horizontal", 3, 1, 9, 1),
    Sketcher.Constraint("Horizontal", 9, 1, 10, 1),
    Sketcher.Constraint("Vertical", 3, 3, 4, 3),
    Sketcher.Constraint("Vertical", 8, 3, 9, 3),
    Sketcher.Constraint("Vertical", 5, 3, 0, 1),
    Sketcher.Constraint("Vertical", 0, 1, 2, 1),
    Sketcher.Constraint("Vertical", 2, 1, 4, 1),
    Sketcher.Constraint("Vertical", 11, 3, 6, 1),
    Sketcher.Constraint("Vertical", 6, 1, 11, 1),
    Sketcher.Constraint("Radius", 0, Q("0.0925 in")),
    Sketcher.Constraint("DistanceX", 4, 3, 6, 3, Q("123.382101 mm")),
    Sketcher.Constraint("DistanceX", -1, 1, 0, 3, Q("27.208949 mm")),
    Sketcher.Constraint("DistanceY", 4, 3, -1, 1, Q("74.849361 mm")),
    Sketcher.Constraint("DistanceY", 4, 3, 0, 3, Q("61.472288 mm")),
])
pocket3 = body.newObject("PartDesign::Pocket", "Pocket002")
pocket3.Profile = sketch4
pocket3.Length = Q("0.3 in")
pocket3.Reversed = True

# Sketch on XZ plane
sketch5 = body.newObject("Sketcher::SketchObject", "Sketch004")
sketch5.AttachmentSupport = (doc.getObject("XZ_Plane"), [""])
sketch5.MapMode = "FlatFace"
sketch5.AttachmentOffset = App.Placement(V(0, 0, -0.125 * 25.4), App.Rotation())
sketch5.addGeometry([
    Part.Circle(V(52.3, -210.6, 0), V(0, 0, 1), 2.3),
    Part.Circle(V(52.3, -173.5, 0), V(0, 0, 1), 2.3),
    Part.Circle(V(125.5, -173.5, 0), V(0, 0, 1), 2.3),
    Part.Circle(V(125.5, -210.6, 0), V(0, 0, 1), 2.3),
], False)
sketch5.addConstraint([
    Sketcher.Constraint("Equal", 0, 1),
    Sketcher.Constraint("Equal", 1, 2),
    Sketcher.Constraint("Equal", 2, 3),
    Sketcher.Constraint("Horizontal", 1, 3, 2, 3),
    Sketcher.Constraint("Horizontal", 0, 3, 3, 3),
    Sketcher.Constraint("Vertical", 0, 3, 1, 3),
    Sketcher.Constraint("Vertical", 2, 3, 3, 3),
    Sketcher.Constraint("Diameter", 0, Q("0.185 in")),
    Sketcher.Constraint("DistanceX", -1, 1, 0, 3, Q("52.321221 mm")),
    Sketcher.Constraint("DistanceX", -1, 1, 2, 3, Q("125.478779 mm")),
    Sketcher.Constraint("DistanceY", 0, 3, 1, 3, Q("37.014568 mm")),
    Sketcher.Constraint("DistanceY", 0, 3, -1, 1, Q("210.560283 mm")),
])
pocket4 = body.newObject("PartDesign::Pocket", "Pocket003")
pocket4.Profile = sketch5
pocket4.Length = Q("1 in")
pocket4.Reversed = True

doc.recompute()
